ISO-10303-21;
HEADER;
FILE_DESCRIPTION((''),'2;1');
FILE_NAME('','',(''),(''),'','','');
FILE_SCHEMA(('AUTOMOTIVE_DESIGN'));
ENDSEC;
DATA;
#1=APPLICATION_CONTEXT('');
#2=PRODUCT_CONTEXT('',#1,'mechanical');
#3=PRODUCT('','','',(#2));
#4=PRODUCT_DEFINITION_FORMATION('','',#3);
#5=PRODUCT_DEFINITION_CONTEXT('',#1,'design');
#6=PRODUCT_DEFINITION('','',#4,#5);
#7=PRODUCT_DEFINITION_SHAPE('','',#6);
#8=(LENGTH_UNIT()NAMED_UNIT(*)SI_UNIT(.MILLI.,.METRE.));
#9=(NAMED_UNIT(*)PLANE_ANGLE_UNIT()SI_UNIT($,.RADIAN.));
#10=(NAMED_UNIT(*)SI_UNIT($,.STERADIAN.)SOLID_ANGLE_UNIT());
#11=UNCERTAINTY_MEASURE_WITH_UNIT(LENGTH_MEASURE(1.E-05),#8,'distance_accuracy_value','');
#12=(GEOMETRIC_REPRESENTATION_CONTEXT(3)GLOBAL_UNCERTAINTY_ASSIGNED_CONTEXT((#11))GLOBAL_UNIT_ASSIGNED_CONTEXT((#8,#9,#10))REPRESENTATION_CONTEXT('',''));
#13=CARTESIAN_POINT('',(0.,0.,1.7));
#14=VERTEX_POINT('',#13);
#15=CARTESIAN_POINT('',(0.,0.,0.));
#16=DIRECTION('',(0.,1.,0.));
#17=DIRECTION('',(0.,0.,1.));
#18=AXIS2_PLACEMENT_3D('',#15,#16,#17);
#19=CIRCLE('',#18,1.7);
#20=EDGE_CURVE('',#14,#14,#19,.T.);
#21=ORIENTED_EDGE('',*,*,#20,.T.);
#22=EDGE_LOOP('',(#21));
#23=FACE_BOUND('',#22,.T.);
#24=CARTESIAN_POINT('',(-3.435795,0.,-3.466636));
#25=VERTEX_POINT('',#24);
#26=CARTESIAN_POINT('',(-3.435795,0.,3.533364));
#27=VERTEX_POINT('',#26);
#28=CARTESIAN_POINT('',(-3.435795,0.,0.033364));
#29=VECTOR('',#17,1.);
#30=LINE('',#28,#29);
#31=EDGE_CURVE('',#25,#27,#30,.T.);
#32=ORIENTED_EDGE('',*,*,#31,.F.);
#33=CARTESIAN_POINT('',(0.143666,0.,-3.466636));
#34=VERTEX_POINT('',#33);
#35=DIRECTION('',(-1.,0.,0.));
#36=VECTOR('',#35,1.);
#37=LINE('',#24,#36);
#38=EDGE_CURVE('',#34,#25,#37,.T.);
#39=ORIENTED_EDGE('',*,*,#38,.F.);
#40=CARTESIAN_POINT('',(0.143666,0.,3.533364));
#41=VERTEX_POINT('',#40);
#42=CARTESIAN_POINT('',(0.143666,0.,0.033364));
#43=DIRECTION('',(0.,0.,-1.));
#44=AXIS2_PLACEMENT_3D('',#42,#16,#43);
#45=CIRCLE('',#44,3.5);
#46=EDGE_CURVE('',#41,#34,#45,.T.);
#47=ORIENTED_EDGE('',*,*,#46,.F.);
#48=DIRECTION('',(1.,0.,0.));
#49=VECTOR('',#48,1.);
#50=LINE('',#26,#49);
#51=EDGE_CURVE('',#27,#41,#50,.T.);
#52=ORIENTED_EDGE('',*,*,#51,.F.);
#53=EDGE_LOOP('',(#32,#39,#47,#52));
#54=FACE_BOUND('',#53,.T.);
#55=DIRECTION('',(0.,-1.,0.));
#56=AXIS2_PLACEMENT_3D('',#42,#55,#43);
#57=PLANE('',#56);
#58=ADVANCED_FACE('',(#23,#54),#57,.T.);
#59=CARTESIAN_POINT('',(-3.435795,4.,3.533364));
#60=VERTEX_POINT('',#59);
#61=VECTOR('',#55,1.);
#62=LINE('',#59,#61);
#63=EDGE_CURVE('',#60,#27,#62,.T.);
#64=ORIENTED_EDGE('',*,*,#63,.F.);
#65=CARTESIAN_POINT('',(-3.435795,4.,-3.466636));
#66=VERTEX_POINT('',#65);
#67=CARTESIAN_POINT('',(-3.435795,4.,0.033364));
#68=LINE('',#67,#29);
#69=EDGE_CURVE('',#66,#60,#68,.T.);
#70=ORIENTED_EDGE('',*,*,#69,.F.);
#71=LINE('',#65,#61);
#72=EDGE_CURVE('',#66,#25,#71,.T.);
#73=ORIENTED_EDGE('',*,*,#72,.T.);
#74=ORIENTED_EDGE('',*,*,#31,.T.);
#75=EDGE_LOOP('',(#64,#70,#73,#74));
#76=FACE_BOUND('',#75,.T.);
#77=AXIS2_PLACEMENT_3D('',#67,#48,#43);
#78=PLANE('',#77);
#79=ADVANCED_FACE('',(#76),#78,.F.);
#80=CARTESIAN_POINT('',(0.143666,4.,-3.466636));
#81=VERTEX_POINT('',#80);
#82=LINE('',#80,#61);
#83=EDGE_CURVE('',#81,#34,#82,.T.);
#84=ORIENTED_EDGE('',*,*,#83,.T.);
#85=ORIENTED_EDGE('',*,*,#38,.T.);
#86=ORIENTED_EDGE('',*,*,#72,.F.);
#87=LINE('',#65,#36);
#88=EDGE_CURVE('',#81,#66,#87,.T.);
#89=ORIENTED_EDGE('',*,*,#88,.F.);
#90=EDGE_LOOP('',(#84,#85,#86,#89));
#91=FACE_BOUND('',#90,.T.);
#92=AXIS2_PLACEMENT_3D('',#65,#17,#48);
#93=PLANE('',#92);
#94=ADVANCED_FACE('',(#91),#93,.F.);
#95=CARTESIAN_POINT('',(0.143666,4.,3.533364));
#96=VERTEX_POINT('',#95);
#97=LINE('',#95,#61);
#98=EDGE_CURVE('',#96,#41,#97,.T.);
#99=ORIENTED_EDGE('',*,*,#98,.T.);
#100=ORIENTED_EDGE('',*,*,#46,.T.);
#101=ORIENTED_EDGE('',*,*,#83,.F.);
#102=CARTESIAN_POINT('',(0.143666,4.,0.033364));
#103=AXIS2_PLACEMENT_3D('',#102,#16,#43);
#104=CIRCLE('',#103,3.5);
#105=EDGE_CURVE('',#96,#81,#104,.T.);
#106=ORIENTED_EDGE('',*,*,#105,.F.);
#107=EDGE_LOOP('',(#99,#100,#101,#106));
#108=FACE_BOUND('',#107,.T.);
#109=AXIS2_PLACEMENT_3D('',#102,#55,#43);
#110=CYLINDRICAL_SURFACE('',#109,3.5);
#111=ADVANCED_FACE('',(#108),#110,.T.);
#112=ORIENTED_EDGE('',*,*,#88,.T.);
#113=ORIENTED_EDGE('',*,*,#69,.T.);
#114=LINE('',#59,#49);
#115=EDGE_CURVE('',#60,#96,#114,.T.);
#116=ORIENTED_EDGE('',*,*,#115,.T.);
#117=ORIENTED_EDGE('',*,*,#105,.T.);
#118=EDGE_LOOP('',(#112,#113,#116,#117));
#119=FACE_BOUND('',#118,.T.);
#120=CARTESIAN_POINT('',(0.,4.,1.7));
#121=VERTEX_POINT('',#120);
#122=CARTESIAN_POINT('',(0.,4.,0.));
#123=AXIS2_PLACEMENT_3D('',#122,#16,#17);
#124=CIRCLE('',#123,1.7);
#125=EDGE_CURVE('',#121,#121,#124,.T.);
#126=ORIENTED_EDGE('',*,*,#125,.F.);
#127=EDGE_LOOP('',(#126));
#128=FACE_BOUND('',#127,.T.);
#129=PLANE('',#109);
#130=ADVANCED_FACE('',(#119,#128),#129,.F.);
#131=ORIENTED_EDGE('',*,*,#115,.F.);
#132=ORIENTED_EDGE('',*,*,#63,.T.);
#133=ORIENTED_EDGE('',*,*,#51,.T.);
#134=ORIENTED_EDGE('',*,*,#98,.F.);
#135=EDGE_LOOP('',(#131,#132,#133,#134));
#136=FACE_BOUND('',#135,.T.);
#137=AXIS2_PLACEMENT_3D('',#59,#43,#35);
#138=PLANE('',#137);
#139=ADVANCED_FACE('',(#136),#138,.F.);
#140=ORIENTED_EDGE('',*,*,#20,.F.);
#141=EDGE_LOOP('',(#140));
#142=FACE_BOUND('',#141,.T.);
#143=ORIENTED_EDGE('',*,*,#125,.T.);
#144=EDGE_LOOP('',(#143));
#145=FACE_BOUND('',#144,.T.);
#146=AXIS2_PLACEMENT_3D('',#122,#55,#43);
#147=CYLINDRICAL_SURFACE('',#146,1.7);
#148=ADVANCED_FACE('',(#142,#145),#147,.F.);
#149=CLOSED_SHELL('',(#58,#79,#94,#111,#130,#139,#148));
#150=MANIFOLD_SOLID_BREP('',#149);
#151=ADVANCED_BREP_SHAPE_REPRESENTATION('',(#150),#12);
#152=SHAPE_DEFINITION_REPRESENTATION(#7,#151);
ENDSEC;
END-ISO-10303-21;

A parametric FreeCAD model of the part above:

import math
import FreeCAD as App
import Part
import Sketcher

V = App.Vector

doc = App.newDocument("Part")
body = doc.addObject("PartDesign::Body", "Body")

# Sketch on XZ plane
sketch1 = body.newObject("Sketcher::SketchObject", "Sketch")
sketch1.AttachmentSupport = (doc.getObject("XZ_Plane"), [""])
sketch1.MapMode = "FlatFace"
sketch1.addGeometry([
    Part.LineSegment(V(0.1, -3.5, 0), V(-3.4, -3.5, 0)),  # 0
    Part.LineSegment(V(-3.4, -3.5, 0), V(-3.4, 3.5, 0)),  # 1
    Part.LineSegment(V(-3.4, 3.5, 0), V(0.1, 3.5, 0)),  # 2
    Part.ArcOfCircle(Part.Circle(V(0.1, 0, 0), V(0, 0, 1), 3.5), math.radians(-90), math.radians(90)),  # 3
    Part.Circle(V(0, 0, 0), V(0, 0, 1), 1.7),  # 4
], False)
sketch1.addConstraint([
    Sketcher.Constraint("Coincident", 0, 2, 1, 1),
    Sketcher.Constraint("Coincident", 1, 2, 2, 1),
    Sketcher.Constraint("Tangent", 2, 2, 3, 2),
    Sketcher.Constraint("Tangent", 3, 1, 0, 1),
    Sketcher.Constraint("Horizontal", 0),
    Sketcher.Constraint("Vertical", 1),
    Sketcher.Constraint("Horizontal", 2),
    Sketcher.Constraint("Coincident", 4, 3, -1, 1),
    Sketcher.Constraint("Diameter", 4, 3.4),
    Sketcher.Constraint("Radius", 3, 3.5),
    Sketcher.Constraint("DistanceX", 0, 2, 0, 1, 3.579461),
    Sketcher.Constraint("DistanceX", -1, 1, 3, 3, 0.143666),
    Sketcher.Constraint("DistanceY", -1, 1, 3, 3, 0.033364),
])
pad1 = body.newObject("PartDesign::Pad", "Pad")
pad1.Profile = sketch1
pad1.Length = 4
pad1.Reversed = True

doc.recompute()
